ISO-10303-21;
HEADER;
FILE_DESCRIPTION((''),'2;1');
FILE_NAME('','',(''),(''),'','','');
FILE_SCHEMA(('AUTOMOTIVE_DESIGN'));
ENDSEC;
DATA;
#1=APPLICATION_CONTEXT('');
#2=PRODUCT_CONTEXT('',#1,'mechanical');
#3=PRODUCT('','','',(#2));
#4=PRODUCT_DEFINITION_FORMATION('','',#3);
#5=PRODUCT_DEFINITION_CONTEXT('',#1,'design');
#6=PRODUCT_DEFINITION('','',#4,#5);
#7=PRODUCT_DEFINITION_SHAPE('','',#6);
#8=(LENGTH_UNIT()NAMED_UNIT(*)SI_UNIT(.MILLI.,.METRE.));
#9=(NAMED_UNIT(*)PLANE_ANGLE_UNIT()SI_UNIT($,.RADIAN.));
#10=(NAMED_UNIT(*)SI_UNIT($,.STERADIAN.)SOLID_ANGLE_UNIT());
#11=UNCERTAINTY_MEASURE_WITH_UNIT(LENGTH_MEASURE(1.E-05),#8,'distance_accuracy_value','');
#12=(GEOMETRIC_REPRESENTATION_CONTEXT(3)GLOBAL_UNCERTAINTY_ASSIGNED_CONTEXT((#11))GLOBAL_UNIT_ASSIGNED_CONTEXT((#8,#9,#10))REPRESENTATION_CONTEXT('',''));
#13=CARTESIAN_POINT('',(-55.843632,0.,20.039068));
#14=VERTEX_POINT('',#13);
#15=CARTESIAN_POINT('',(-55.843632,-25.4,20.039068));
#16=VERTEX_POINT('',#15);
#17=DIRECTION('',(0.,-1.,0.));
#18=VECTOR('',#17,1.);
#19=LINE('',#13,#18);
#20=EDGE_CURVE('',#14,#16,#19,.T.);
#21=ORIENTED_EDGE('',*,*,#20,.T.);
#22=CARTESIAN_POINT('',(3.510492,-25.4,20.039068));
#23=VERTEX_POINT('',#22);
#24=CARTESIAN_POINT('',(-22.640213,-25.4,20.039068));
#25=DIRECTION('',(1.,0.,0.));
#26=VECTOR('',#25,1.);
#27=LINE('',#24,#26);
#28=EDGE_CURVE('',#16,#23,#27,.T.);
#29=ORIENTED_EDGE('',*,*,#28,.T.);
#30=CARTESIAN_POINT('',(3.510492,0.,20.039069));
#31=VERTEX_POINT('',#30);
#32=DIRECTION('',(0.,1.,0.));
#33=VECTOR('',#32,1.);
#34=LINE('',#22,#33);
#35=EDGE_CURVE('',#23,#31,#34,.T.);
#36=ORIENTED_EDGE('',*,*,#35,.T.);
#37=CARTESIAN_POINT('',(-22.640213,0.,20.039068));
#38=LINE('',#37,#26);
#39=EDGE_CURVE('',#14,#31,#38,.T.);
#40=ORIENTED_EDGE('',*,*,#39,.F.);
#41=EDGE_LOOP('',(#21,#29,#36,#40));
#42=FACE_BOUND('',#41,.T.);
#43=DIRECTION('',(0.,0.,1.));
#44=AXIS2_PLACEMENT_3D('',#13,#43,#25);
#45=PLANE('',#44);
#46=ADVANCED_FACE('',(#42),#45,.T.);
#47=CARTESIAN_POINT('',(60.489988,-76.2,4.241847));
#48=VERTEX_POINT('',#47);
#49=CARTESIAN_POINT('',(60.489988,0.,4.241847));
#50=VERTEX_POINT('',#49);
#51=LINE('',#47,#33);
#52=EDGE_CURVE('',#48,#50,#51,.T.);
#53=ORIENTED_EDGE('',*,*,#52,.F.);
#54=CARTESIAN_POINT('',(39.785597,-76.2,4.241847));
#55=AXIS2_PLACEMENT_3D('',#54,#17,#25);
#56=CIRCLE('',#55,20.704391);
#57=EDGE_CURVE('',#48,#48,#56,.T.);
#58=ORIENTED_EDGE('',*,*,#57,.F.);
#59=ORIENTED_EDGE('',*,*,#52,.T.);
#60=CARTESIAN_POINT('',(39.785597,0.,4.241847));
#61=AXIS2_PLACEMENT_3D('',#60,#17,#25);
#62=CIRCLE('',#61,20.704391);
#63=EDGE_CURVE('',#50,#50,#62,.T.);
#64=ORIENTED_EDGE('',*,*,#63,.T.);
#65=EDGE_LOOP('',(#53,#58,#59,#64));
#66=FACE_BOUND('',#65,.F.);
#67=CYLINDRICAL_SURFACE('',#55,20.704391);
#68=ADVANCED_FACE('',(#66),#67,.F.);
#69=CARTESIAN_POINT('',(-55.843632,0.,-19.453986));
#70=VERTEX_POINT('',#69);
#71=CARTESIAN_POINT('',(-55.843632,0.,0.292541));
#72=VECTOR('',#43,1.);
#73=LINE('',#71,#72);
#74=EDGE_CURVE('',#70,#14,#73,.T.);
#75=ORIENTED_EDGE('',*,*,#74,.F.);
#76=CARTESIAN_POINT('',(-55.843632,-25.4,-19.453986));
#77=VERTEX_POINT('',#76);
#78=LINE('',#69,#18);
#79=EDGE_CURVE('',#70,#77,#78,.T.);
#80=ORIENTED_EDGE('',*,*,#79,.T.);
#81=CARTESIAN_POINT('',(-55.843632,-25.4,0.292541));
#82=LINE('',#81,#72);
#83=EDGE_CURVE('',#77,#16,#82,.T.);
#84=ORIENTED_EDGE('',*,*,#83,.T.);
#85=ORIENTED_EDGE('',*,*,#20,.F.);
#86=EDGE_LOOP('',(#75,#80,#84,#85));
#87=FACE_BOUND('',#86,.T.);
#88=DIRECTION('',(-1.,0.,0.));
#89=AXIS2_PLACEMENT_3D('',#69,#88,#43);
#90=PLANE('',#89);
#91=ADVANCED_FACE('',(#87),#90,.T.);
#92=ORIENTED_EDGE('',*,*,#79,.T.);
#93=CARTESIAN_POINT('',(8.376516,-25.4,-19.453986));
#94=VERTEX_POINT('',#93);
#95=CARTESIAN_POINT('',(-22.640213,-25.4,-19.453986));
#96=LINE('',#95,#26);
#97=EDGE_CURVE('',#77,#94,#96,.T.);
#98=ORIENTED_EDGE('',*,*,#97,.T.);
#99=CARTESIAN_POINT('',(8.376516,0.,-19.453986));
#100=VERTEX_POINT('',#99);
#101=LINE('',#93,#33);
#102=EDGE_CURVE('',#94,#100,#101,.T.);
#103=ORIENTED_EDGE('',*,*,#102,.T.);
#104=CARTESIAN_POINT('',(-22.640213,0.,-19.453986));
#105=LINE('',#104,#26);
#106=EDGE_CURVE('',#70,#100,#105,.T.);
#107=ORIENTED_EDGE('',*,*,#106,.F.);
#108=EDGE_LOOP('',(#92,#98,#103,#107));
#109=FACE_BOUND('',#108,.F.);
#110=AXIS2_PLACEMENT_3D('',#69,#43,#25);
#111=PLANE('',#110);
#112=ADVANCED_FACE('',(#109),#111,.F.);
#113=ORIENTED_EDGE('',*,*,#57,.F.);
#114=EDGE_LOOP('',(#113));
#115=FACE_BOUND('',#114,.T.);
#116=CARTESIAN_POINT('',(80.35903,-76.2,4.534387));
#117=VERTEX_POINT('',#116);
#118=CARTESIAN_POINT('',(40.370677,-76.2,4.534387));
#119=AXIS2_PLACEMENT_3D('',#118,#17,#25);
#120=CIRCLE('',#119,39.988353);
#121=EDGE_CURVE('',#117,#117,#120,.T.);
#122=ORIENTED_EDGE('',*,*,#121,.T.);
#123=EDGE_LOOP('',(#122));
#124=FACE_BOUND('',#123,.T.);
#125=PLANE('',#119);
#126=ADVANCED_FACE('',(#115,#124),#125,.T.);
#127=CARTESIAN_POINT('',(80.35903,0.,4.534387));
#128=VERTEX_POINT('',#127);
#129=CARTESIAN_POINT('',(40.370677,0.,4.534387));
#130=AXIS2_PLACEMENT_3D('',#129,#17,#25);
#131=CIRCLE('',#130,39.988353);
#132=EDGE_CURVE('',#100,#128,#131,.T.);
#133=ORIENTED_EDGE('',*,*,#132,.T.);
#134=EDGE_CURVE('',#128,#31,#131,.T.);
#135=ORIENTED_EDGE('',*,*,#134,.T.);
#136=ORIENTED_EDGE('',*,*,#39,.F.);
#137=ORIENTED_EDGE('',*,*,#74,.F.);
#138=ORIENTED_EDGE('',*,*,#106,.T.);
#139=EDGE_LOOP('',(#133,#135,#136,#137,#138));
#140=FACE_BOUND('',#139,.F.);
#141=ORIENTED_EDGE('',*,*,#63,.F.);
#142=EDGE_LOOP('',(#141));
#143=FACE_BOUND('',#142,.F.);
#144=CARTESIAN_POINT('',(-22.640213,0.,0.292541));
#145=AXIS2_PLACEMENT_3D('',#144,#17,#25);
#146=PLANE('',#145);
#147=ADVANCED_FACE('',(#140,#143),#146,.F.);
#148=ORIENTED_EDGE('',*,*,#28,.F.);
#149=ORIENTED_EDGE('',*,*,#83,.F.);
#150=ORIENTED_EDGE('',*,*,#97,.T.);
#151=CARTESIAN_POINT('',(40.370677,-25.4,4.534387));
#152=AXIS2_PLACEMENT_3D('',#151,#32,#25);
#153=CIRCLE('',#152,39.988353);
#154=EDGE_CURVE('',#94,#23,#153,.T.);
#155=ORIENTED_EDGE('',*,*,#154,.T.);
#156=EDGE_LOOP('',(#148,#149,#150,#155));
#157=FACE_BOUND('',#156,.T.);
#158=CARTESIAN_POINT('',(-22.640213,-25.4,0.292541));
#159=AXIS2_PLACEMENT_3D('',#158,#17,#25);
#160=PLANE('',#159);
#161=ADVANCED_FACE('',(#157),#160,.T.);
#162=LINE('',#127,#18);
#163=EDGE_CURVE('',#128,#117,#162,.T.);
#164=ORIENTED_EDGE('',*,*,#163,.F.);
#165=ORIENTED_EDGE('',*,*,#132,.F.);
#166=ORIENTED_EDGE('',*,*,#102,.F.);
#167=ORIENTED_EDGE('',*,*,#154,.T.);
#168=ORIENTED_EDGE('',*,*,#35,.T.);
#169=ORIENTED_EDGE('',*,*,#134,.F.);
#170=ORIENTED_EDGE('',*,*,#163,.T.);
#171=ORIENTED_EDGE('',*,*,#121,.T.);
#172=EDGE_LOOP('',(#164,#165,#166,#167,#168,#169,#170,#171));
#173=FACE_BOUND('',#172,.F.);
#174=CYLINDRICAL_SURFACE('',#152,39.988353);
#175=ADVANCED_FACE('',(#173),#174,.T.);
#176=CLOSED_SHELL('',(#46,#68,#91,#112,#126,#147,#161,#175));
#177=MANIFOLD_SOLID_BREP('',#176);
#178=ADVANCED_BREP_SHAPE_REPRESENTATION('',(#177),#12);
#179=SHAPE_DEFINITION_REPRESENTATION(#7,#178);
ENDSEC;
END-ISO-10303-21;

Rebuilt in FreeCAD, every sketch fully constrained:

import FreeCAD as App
import Part
import Sketcher
from FreeCAD import Vector
Q = App.Units.Quantity

doc = App.newDocument("Part")
body = doc.addObject("PartDesign::Body", "Body")

sketch1 = body.newObject("Sketcher::SketchObject", "Sketch")
sketch1.AttachmentSupport = (doc.getObject("XZ_Plane"), [""])
sketch1.MapMode = "FlatFace"
sketch1.addGeometry(Part.Circle(Vector(40.370677, 4.534387, 0), Vector(0, 0, 1), 39.988353), False)
sketch1.addConstraint(Sketcher.Constraint("Diameter", 0, Q("79.976706 mm")))
sketch1.addConstraint(Sketcher.Constraint("DistanceX", -1, 1, 0, 3, Q("40.370677 mm")))
sketch1.addConstraint(Sketcher.Constraint("DistanceY", -1, 1, 0, 3, Q("4.534387 mm")))
pad1 = body.newObject("PartDesign::Pad", "Pad")
pad1.Profile = sketch1
pad1.Length = Q("1 in")

sketch2 = body.newObject("Sketcher::SketchObject", "Sketch001")
sketch2.AttachmentSupport = (doc.getObject("XZ_Plane"), [""])
sketch2.MapMode = "FlatFace"
sketch2.AttachmentOffset = App.Placement(Vector(0, 0, 1 * 25.4), App.Rotation())
sketch2.addGeometry(Part.Circle(Vector(40.370677, 4.534387, 0), Vector(0, 0, 1), 39.988353), False)
sketch2.addConstraint(Sketcher.Constraint("Diameter", 0, Q("79.976706 mm")))
sketch2.addConstraint(Sketcher.Constraint("DistanceX", -1, 1, 0, 3, Q("40.370677 mm")))
sketch2.addConstraint(Sketcher.Constraint("DistanceY", -1, 1, 0, 3, Q("4.534387 mm")))
pad2 = body.newObject("PartDesign::Pad", "Pad001")
pad2.Profile = sketch2
pad2.Length = Q("2 in")

sketch3 = body.newObject("Sketcher::SketchObject", "Sketch002")
sketch3.AttachmentSupport = (doc.getObject("XZ_Plane"), [""])
sketch3.MapMode = "FlatFace"
sketch3.AttachmentOffset = App.Placement(Vector(0, 0, 3 * 25.4), App.Rotation())
sketch3.addGeometry(Part.Circle(Vector(39.785597, 4.241847, 0), Vector(0, 0, 1), 20.704391), False)
sketch3.addConstraint(Sketcher.Constraint("Diameter", 0, Q("41.408782 mm")))
sketch3.addConstraint(Sketcher.Constraint("DistanceX", -1, 1, 0, 3, Q("39.785597 mm")))
sketch3.addConstraint(Sketcher.Constraint("DistanceY", -1, 1, 0, 3, Q("4.241847 mm")))
pocket1 = body.newObject("PartDesign::Pocket", "Pocket")
pocket1.Profile = sketch3
pocket1.Type = "ThroughAll"

sketch4 = body.newObject("Sketcher::SketchObject", "Sketch003")
sketch4.AttachmentSupport = (doc.getObject("XZ_Plane"), [""])
sketch4.MapMode = "FlatFace"
sketch4.addGeometry(Part.LineSegment(Vector(-55.843632, 20.039068, 0), Vector(-55.843632, -19.453986, 0)), False)
sketch4.addGeometry(Part.LineSegment(Vector(-55.843632, -19.453986, 0), Vector(10.563206, -19.453986, 0)), False)
sketch4.addGeometry(Part.LineSegment(Vector(10.563206, -19.453986, 0), Vector(10.563206, 20.039068, 0)), False)
sketch4.addGeometry(Part.LineSegment(Vector(10.563206, 20.039068, 0), Vector(-55.843632, 20.039068, 0)), False)
sketch4.addConstraint(Sketcher.Constraint("Coincident", 0, 2, 1, 1))
sketch4.addConstraint(Sketcher.Constraint("Coincident", 1, 2, 2, 1))
sketch4.addConstraint(Sketcher.Constraint("Coincident", 2, 2, 3, 1))
sketch4.addConstraint(Sketcher.Constraint("Coincident", 3, 2, 0, 1))
sketch4.addConstraint(Sketcher.Constraint("Vertical", 0))
sketch4.addConstraint(Sketcher.Constraint("Horizontal", 1))
sketch4.addConstraint(Sketcher.Constraint("Vertical", 2))
sketch4.addConstraint(Sketcher.Constraint("Horizontal", 3))
sketch4.addConstraint(Sketcher.Constraint("DistanceX", 1, 1, 1, 2, Q("66.406839 mm")))
sketch4.addConstraint(Sketcher.Constraint("DistanceY", 0, 2, 0, 1, Q("39.493055 mm")))
sketch4.addConstraint(Sketcher.Constraint("DistanceY", -1, 1, 2, 2, Q("20.039068 mm")))
sketch4.addConstraint(Sketcher.Constraint("DistanceX", 0, 2, -1, 1, Q("55.843632 mm")))
pad3 = body.newObject("PartDesign::Pad", "Pad002")
pad3.Profile = sketch4
pad3.Length = Q("1 in")

doc.recompute()
